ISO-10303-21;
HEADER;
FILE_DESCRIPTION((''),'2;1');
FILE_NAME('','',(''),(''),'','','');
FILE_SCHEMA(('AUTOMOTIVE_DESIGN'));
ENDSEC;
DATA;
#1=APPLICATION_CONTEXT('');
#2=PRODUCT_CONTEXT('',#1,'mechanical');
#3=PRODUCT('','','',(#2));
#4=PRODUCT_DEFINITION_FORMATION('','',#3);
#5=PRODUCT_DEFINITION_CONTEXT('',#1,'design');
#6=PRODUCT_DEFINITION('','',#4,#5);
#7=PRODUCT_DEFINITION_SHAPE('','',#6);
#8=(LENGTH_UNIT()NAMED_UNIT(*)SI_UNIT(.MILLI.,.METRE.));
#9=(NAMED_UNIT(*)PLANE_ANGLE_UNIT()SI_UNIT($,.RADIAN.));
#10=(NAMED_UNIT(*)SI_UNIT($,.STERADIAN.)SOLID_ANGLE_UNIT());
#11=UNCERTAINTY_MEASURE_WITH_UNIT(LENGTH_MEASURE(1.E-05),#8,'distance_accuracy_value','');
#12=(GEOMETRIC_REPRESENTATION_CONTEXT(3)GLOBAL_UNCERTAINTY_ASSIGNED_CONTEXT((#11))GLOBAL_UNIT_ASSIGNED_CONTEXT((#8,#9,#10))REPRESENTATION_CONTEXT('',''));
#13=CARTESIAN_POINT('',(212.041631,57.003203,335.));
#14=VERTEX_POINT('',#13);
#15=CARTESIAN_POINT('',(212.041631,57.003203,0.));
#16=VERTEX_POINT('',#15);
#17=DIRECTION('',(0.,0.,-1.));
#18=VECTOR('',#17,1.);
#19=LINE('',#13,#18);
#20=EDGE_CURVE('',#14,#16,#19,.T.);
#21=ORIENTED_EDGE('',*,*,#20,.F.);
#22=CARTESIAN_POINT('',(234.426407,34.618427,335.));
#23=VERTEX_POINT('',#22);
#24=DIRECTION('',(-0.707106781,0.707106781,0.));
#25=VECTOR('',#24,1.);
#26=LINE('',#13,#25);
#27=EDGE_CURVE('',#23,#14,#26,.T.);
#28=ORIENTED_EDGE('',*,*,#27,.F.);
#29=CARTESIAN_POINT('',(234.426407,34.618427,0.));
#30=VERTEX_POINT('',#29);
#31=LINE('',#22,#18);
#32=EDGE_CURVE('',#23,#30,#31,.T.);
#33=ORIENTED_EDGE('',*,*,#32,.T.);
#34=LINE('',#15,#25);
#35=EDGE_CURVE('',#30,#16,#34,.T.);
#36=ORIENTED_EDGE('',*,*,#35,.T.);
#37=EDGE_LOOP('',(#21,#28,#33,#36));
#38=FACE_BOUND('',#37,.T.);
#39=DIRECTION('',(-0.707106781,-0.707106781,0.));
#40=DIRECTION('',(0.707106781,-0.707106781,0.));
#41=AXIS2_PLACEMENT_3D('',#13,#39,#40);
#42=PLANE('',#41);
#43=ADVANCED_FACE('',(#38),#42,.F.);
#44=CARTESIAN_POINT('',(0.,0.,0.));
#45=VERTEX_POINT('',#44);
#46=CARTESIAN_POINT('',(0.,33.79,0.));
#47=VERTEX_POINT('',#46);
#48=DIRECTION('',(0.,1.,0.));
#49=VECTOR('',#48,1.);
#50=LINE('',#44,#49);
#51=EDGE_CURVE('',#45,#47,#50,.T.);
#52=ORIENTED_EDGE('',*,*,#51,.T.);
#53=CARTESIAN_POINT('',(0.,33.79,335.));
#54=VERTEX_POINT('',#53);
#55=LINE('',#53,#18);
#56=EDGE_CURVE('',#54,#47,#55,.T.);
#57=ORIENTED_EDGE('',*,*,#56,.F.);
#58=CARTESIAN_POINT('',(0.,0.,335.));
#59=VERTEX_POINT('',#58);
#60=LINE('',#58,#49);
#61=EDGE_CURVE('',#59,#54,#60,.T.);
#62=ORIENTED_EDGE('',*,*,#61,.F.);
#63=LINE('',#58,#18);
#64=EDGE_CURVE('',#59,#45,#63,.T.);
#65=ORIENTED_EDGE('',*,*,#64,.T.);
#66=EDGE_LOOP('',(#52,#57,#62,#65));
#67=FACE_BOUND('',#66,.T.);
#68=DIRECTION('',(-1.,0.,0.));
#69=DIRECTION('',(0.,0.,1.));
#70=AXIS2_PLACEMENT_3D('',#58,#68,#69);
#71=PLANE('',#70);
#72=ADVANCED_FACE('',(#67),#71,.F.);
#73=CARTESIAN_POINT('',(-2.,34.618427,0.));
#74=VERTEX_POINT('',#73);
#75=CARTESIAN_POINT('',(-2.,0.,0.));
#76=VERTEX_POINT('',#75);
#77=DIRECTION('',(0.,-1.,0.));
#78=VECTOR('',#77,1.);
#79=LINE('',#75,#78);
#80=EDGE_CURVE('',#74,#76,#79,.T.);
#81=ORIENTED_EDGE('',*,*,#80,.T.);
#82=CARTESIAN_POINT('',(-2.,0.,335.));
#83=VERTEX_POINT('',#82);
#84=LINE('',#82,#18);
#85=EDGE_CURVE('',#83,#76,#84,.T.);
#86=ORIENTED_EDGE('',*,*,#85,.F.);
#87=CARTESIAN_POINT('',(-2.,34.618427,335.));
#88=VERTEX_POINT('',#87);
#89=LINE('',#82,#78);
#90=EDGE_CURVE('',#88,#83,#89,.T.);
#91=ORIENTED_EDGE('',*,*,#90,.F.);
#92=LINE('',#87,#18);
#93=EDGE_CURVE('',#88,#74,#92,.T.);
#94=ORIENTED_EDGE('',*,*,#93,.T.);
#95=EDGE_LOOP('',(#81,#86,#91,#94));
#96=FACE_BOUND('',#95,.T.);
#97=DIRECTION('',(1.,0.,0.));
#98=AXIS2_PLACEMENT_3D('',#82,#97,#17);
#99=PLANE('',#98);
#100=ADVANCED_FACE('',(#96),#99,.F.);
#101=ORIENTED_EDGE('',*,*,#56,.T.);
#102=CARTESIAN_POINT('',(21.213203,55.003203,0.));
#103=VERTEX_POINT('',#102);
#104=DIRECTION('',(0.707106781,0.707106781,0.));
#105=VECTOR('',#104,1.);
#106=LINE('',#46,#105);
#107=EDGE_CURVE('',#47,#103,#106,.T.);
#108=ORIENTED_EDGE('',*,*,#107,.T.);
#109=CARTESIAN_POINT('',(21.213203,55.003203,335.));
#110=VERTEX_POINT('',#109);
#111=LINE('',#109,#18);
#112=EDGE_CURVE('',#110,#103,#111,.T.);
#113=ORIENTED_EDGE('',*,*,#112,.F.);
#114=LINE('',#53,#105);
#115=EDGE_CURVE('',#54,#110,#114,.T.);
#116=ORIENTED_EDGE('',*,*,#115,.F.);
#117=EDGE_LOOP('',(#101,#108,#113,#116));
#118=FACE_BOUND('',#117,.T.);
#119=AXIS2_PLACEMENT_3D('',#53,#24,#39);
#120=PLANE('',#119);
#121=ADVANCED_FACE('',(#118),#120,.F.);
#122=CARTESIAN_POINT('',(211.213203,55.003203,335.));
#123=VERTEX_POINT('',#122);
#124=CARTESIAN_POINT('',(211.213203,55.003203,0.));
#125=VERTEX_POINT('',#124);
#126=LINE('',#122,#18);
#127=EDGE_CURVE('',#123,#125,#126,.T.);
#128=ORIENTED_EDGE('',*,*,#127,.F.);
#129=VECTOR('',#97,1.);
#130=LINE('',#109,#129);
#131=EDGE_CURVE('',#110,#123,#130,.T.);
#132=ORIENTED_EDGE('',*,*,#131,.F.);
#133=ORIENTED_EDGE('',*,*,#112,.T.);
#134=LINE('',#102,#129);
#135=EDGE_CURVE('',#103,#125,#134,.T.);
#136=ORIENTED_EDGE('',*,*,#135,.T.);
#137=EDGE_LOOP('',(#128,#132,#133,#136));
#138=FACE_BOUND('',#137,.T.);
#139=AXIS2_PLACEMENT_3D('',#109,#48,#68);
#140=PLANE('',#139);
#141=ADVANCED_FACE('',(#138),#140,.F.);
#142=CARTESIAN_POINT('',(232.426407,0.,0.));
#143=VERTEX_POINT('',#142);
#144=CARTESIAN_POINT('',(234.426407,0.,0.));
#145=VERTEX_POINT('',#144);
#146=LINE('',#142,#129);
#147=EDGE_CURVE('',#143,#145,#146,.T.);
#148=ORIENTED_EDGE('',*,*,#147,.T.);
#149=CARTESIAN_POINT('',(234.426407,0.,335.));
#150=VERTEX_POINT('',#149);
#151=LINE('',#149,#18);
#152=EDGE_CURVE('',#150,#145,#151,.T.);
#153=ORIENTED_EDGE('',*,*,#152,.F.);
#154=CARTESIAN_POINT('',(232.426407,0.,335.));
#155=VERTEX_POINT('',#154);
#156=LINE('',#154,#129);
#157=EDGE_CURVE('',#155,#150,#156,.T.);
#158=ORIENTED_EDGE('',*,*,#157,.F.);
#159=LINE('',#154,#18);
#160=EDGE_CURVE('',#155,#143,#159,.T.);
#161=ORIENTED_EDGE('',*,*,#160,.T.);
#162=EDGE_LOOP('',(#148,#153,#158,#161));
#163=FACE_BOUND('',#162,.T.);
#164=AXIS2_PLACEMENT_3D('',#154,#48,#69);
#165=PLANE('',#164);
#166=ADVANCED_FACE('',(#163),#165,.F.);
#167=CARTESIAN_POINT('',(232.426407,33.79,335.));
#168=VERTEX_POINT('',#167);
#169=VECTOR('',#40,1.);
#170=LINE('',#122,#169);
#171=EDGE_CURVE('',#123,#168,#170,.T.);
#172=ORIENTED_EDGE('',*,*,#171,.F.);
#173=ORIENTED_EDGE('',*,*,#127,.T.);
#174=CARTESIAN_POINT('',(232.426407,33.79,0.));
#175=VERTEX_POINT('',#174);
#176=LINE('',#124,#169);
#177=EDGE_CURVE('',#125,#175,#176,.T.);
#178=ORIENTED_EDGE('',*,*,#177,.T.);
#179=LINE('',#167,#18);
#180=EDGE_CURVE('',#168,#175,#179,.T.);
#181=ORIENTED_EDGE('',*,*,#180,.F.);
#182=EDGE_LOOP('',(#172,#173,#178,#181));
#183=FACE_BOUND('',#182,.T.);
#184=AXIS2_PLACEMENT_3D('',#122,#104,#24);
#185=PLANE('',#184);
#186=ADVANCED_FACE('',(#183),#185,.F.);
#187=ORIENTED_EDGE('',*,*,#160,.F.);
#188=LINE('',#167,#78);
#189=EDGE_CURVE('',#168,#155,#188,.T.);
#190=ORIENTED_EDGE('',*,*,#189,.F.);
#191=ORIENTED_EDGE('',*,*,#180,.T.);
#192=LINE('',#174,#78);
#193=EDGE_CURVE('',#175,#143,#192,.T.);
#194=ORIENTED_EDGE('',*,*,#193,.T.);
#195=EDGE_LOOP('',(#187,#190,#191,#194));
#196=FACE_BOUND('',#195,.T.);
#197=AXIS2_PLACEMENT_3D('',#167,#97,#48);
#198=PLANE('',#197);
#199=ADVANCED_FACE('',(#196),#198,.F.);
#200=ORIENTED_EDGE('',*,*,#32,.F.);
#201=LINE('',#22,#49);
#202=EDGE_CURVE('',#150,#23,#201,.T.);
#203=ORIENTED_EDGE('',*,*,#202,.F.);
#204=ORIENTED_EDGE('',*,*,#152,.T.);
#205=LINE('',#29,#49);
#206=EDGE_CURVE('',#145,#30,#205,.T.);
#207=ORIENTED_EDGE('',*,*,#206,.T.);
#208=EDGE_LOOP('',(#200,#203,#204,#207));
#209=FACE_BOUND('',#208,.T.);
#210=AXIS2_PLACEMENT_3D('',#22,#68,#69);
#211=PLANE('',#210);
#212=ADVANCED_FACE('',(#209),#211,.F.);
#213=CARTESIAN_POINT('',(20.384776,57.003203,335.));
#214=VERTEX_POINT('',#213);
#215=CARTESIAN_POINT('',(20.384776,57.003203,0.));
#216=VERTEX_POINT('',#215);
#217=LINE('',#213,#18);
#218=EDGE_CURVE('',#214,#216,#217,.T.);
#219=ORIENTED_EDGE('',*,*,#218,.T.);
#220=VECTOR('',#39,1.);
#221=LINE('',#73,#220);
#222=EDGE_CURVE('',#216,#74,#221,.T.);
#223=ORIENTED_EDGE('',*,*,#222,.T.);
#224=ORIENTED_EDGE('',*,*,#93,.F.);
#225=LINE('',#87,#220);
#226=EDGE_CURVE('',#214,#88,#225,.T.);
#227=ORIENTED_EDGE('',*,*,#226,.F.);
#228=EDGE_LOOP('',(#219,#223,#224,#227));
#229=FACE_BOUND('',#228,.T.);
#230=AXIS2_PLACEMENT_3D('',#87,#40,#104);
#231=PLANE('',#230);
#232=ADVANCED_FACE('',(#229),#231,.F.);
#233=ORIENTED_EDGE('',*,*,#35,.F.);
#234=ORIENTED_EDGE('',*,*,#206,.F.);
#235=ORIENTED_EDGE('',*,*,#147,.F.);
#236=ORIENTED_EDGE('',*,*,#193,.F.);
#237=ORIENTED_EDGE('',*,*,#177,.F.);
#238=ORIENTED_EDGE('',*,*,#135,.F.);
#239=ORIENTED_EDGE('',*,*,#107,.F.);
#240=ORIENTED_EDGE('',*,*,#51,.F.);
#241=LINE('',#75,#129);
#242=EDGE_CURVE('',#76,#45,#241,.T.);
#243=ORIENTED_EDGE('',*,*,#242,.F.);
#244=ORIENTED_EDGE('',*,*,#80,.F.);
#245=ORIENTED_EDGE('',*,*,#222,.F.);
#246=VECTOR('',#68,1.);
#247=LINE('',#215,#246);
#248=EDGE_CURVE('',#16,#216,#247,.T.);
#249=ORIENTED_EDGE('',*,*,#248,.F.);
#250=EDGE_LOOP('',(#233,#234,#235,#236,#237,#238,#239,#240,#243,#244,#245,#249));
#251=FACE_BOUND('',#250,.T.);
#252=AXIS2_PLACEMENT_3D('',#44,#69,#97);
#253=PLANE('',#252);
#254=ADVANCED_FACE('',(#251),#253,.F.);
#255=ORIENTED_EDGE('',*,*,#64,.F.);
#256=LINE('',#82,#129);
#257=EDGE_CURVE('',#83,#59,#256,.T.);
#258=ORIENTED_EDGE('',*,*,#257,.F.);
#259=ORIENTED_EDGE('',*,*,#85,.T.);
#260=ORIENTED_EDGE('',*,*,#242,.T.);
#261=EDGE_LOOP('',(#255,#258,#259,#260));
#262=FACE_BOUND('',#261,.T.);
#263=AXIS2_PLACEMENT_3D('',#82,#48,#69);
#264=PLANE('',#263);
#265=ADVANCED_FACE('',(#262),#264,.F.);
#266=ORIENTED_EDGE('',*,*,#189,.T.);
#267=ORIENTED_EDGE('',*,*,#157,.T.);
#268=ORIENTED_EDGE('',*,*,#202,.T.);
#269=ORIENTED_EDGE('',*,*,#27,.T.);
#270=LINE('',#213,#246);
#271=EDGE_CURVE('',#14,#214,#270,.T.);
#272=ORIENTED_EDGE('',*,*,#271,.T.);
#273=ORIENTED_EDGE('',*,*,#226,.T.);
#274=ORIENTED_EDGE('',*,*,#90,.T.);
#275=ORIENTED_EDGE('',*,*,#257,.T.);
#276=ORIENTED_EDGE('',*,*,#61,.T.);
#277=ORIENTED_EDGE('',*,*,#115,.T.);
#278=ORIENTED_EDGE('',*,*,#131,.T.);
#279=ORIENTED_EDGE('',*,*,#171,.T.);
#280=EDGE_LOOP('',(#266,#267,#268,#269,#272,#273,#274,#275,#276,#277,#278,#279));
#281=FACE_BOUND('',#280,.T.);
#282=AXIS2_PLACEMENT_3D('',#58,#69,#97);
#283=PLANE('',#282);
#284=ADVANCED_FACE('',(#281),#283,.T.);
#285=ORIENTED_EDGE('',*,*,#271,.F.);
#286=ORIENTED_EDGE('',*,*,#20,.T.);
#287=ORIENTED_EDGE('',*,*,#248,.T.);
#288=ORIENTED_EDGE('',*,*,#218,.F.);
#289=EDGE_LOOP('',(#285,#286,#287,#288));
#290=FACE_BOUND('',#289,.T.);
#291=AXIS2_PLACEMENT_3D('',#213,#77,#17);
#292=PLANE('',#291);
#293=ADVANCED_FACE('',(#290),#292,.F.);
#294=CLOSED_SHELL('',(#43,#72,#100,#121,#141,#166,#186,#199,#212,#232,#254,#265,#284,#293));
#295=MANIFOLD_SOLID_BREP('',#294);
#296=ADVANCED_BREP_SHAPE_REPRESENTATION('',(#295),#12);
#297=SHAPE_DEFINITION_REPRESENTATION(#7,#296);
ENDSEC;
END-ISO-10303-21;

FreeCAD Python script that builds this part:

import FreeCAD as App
import Part
import Sketcher

V = App.Vector
Q = App.Units.Quantity


def add_polygon(sketch, points):
    """Adds a closed chain of lines whose ends are joined by coincident constraints."""
    first, n = sketch.GeometryCount, len(points)
    for a, b in zip(points, points[1:] + points[:1]):
        sketch.addGeometry(Part.LineSegment(App.Vector(*a, 0), App.Vector(*b, 0)), False)
    for i in range(n):
        sketch.addConstraint(Sketcher.Constraint("Coincident", first + i, 2, first + (i + 1) % n, 1))

doc = App.newDocument("Part")
params = doc.addObject("Spreadsheet::Sheet", "Params")
for row, (alias, value) in enumerate([
    ("sketch1_width", "190 mm"),
    ("sketch1_width2", "2 mm"),
    ("sketch1_length", "30 mm"),
    ("sketch1_height", "33.79 mm"),
    ("pad1_length", "335 mm"),
], start=1):
    params.set(f"A{row}", alias)
    params.set(f"B{row}", "=" + value)
    params.setAlias(f"B{row}", alias)

body = doc.addObject("PartDesign::Body", "Body")

sketch1 = body.newObject("Sketcher::SketchObject", "Sketch")
sketch1.AttachmentSupport = (doc.getObject("XY_Plane"), [""])
sketch1.MapMode = "FlatFace"
add_polygon(sketch1, [(0, 0), (0, 33.8), (21.2, 55), (211.2, 55), (232.4, 33.8), (232.4, 0), (234.4, 0), (234.4, 34.6), (212, 57), (20.4, 57), (-2, 34.6), (-2, 0)])
sketch1.addConstraint([
    Sketcher.Constraint("Vertical", 0),
    Sketcher.Constraint("Horizontal", 2),
    Sketcher.Constraint("Vertical", 4),
    Sketcher.Constraint("Horizontal", 5),
    Sketcher.Constraint("Vertical", 6),
    Sketcher.Constraint("Horizontal", 8),
    Sketcher.Constraint("Vertical", 10),
    Sketcher.Constraint("Horizontal", 11),
    Sketcher.Constraint("Coincident", 11, 2, -1, 1),
    Sketcher.Constraint("PointOnObject", 4, 2, -1),
    Sketcher.Constraint("Perpendicular", 1, 3),
    Sketcher.Constraint("Parallel", 3, 7),
    Sketcher.Constraint("Perpendicular", 7, 9),
    Sketcher.Constraint("Horizontal", 0, 2, 3, 2),
    Sketcher.Constraint("Horizontal", 6, 2, 9, 2),
    Sketcher.Constraint("Equal", 5, 11),
    Sketcher.Constraint("Equal", 1, 3),
    Sketcher.Constraint("DistanceX", 2, 1, 2, 2, Q("190 mm")),
    Sketcher.Constraint("DistanceX", 5, 1, 5, 2, Q("2 mm")),
    Sketcher.Constraint("Distance", 1, Q("30 mm")),
    Sketcher.Constraint("DistanceY", 2, 2, 7, 2, Q("2 mm")),
    Sketcher.Constraint("DistanceY", 0, 1, 0, 2, Q("33.79 mm")),
    Sketcher.Constraint("DistanceX", 8, 2, 8, 1, Q("191.656854 mm")),
])
sketch1.setExpression("Constraints[29]", "Params.sketch1_width")
sketch1.setExpression("Constraints[30]", "Params.sketch1_width2")
sketch1.setExpression("Constraints[31]", "Params.sketch1_length")
sketch1.setExpression("Constraints[33]", "Params.sketch1_height")
pad1 = body.newObject("PartDesign::Pad", "Pad")
pad1.Profile = sketch1
pad1.setExpression("Length", "Params.pad1_length")

doc.recompute()
